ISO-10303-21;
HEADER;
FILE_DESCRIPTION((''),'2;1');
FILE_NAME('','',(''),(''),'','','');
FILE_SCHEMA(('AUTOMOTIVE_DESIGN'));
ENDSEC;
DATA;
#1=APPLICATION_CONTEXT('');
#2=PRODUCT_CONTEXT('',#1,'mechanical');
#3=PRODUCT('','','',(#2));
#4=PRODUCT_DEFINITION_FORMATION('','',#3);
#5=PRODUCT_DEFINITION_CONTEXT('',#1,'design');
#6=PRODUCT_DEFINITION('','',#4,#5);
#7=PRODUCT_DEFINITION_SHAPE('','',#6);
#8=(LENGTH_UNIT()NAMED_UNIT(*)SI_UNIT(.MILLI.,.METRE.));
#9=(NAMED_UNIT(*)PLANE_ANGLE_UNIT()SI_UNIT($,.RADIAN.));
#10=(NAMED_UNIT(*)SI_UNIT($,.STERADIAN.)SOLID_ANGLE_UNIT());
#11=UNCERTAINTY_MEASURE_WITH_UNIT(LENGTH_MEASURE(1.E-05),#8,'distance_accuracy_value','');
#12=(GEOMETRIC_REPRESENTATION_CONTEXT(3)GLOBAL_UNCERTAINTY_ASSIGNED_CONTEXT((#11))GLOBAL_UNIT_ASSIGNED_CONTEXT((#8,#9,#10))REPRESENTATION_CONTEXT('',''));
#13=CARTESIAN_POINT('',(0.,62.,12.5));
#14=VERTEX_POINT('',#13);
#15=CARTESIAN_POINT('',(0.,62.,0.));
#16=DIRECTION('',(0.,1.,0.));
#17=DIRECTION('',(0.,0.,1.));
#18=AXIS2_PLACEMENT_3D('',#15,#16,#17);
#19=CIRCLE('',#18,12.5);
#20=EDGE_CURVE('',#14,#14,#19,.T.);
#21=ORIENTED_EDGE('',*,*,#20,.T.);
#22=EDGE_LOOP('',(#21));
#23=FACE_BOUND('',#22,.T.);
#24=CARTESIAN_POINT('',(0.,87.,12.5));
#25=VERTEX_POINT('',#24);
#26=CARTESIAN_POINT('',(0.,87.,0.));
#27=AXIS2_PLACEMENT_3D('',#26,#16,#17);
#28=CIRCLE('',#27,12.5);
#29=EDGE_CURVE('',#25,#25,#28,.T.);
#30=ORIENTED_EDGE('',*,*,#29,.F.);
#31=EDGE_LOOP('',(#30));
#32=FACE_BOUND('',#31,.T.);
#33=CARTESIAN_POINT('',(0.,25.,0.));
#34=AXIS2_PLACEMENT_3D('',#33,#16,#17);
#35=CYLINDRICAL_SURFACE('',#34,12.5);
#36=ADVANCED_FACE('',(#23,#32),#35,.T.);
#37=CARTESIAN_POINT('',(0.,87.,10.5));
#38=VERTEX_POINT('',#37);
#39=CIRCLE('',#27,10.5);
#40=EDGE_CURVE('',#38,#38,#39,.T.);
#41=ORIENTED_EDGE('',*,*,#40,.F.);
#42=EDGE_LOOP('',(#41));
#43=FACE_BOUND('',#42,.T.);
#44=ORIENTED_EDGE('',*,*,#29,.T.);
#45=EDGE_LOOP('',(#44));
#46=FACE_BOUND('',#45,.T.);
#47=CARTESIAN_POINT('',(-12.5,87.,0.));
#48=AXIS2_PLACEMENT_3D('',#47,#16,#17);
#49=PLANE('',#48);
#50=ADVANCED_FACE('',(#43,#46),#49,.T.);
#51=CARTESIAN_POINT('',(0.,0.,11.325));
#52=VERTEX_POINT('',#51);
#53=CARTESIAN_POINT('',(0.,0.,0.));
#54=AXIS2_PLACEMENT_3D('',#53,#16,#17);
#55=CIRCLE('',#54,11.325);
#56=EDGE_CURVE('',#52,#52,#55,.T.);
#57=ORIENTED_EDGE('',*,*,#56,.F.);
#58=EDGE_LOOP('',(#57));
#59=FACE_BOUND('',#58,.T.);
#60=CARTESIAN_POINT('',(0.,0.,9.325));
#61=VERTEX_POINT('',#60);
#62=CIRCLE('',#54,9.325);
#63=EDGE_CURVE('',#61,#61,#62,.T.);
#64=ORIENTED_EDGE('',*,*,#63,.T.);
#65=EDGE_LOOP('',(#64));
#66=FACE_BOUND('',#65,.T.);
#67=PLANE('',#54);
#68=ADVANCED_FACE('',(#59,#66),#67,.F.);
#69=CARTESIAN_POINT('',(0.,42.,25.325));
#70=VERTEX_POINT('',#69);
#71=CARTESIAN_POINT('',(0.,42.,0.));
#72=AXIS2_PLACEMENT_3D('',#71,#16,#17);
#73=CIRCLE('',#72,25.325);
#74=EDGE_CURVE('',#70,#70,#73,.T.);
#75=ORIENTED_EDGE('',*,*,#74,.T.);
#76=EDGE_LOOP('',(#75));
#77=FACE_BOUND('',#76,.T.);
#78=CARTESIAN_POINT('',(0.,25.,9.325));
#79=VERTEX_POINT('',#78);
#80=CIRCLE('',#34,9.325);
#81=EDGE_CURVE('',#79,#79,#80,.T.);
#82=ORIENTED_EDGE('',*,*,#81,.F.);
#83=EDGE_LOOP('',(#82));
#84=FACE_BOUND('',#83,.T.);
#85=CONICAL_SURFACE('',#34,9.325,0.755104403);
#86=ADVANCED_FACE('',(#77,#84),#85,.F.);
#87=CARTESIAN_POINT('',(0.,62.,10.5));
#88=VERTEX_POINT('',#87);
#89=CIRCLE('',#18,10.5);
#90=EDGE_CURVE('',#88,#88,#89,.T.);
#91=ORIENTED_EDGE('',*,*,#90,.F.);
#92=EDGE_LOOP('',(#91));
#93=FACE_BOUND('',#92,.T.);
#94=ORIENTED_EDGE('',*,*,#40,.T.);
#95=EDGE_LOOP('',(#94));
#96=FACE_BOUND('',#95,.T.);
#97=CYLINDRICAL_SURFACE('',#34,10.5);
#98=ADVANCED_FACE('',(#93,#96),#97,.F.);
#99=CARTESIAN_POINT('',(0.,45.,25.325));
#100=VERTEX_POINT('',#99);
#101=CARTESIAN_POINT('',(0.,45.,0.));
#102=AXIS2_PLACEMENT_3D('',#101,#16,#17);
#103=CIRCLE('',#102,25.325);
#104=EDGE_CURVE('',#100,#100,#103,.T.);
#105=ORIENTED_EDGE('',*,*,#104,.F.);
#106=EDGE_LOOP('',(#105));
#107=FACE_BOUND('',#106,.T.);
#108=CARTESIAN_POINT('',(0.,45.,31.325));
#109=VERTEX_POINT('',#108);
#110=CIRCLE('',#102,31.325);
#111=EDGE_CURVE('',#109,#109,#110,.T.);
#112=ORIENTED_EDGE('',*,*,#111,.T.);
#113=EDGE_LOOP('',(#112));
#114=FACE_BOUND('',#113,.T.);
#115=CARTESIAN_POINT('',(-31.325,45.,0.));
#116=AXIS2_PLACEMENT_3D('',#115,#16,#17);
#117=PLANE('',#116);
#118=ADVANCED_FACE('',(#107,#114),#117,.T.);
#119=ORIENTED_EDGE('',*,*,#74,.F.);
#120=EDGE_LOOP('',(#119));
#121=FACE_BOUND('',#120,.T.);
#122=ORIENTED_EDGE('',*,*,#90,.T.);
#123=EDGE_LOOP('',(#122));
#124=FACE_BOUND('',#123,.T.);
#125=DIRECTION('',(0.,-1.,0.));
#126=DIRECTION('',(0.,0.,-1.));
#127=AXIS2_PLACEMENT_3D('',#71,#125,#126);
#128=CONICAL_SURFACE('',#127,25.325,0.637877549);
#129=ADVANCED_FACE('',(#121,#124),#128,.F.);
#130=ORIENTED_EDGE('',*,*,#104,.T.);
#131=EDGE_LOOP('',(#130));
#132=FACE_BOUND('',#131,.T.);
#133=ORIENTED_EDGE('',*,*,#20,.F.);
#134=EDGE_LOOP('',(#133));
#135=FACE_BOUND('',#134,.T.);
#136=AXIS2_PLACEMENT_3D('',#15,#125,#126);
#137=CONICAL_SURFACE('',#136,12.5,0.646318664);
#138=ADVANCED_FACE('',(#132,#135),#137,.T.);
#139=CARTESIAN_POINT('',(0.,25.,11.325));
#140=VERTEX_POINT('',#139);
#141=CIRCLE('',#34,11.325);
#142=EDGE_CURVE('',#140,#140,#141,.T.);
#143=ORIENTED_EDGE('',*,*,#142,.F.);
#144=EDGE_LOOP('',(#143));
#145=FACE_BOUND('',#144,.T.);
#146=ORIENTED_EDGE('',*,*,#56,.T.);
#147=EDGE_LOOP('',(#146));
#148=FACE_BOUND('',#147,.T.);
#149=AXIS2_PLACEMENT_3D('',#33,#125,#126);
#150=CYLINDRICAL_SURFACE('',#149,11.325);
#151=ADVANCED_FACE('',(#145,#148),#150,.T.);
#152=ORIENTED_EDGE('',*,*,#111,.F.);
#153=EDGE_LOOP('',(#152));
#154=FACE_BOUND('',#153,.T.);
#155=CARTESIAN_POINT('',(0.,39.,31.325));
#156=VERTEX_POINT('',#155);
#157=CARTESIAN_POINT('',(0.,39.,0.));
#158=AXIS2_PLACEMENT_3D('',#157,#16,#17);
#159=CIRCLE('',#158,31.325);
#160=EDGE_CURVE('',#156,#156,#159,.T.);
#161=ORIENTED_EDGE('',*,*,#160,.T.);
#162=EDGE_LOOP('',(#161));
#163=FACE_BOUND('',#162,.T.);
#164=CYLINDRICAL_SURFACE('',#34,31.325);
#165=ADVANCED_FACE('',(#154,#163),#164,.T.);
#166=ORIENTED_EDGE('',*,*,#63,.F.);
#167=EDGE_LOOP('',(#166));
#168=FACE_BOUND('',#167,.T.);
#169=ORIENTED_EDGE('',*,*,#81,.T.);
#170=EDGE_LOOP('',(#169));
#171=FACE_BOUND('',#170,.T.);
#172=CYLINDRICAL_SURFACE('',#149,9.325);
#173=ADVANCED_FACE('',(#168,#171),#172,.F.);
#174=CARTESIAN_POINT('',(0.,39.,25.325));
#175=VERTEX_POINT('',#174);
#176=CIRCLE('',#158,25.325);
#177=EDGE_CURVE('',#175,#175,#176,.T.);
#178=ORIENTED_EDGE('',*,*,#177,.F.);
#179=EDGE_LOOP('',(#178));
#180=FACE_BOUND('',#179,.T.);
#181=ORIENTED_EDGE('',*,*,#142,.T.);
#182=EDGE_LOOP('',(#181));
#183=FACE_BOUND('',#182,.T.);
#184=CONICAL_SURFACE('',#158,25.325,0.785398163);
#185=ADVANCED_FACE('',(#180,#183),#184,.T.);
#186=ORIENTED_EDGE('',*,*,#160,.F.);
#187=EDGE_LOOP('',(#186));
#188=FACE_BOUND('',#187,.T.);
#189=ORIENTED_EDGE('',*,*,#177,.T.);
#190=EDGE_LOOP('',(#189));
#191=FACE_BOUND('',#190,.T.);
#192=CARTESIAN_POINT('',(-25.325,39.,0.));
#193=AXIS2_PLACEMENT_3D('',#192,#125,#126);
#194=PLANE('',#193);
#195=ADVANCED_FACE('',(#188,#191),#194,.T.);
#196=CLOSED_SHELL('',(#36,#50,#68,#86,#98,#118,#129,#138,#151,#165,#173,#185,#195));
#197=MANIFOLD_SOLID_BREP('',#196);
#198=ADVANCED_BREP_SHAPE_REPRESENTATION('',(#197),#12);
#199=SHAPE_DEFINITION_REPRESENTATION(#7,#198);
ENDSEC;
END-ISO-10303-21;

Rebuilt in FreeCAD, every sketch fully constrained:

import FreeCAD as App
import Part
import Sketcher
from FreeCAD import Vector
Q = App.Units.Quantity

doc = App.newDocument("Part")
body = doc.addObject("PartDesign::Body", "Body")

# Sketch on XZ plane
sketch1 = body.newObject("Sketcher::SketchObject", "Sketch")
sketch1.AttachmentSupport = (doc.getObject("XZ_Plane"), [""])
sketch1.MapMode = "FlatFace"
sketch1.addGeometry([
    Part.Circle(Vector(0, 0, 0), Vector(0, 0, 1), 11),
    Part.Circle(Vector(0, 0, 0), Vector(0, 0, 1), 9),
], False)
sketch1.addConstraint([
    Sketcher.Constraint("Coincident", 0, 3, -1, 1),
    Sketcher.Constraint("Coincident", 1, 3, -1, 1),
    Sketcher.Constraint("Diameter", 0, Q("22.65 mm")),
    Sketcher.Constraint("Diameter", 1, Q("18.65 mm")),
])
pad1 = body.newObject("PartDesign::Pad", "Pad")
pad1.Profile = sketch1
pad1.Length = 25
pad1.Reversed = True

# Sketch on XY plane
sketch2 = body.newObject("Sketcher::SketchObject", "Sketch001")
sketch2.AttachmentSupport = (doc.getObject("XY_Plane"), [""])
sketch2.MapMode = "FlatFace"
sketch2.addGeometry([
    Part.LineSegment(Vector(-25.3, 39, 0), Vector(-11.3, 25, 0)),  # 0
    Part.LineSegment(Vector(-11.3, 25, 0), Vector(-9.3, 25, 0)),  # 1
    Part.LineSegment(Vector(-9.3, 25, 0), Vector(-25.3, 42, 0)),  # 2
    Part.LineSegment(Vector(-25.3, 42, 0), Vector(-31.3, 42, 0)),  # 3
    Part.LineSegment(Vector(-31.3, 42, 0), Vector(-31.3, 39, 0)),  # 4
    Part.LineSegment(Vector(-31.3, 39, 0), Vector(-25.3, 39, 0)),  # 5
], False)
sketch2.addConstraint([
    Sketcher.Constraint("Coincident", 0, 2, 1, 1),
    Sketcher.Constraint("Coincident", 1, 2, 2, 1),
    Sketcher.Constraint("Coincident", 2, 2, 3, 1),
    Sketcher.Constraint("Coincident", 3, 2, 4, 1),
    Sketcher.Constraint("Coincident", 4, 2, 5, 1),
    Sketcher.Constraint("Coincident", 5, 2, 0, 1),
    Sketcher.Constraint("Horizontal", 1),
    Sketcher.Constraint("Horizontal", 3),
    Sketcher.Constraint("Vertical", 4),
    Sketcher.Constraint("Horizontal", 5),
    Sketcher.Constraint("Vertical", 2, 2, 5, 2),
    Sketcher.Constraint("DistanceX", 1, 1, 1, 2, Q("2 mm")),
    Sketcher.Constraint("DistanceX", 3, 2, 3, 1, Q("6 mm")),
    Sketcher.Constraint("DistanceY", 4, 2, 4, 1, Q("3 mm")),
    Sketcher.Constraint("Angle", 0, Q("-45 deg")),
    Sketcher.Constraint("DistanceY", -1, 1, 0, 2, Q("25 mm")),
    Sketcher.Constraint("DistanceY", -1, 1, 2, 2, Q("42 mm")),
    Sketcher.Constraint("DistanceX", 0, 2, -1, 1, Q("11.325 mm")),
])
revolution = body.newObject("PartDesign::Revolution", "Revolution")
revolution.Profile = sketch2
revolution.ReferenceAxis = (sketch2, ["V_Axis"])
revolution.Angle = 360

# Sketch on XY plane
sketch3 = body.newObject("Sketcher::SketchObject", "Sketch002")
sketch3.AttachmentSupport = (doc.getObject("XY_Plane"), [""])
sketch3.MapMode = "FlatFace"
sketch3.addGeometry([
    Part.LineSegment(Vector(-31.3, 45, 0), Vector(-31.3, 42, 0)),  # 0
    Part.LineSegment(Vector(-31.3, 42, 0), Vector(-25.3, 42, 0)),  # 1
    Part.LineSegment(Vector(-25.3, 42, 0), Vector(-10.5, 62, 0)),  # 2
    Part.LineSegment(Vector(-10.5, 62, 0), Vector(-10.5, 87, 0)),  # 3
    Part.LineSegment(Vector(-10.5, 87, 0), Vector(-12.5, 87, 0)),  # 4
    Part.LineSegment(Vector(-12.5, 87, 0), Vector(-12.5, 62, 0)),  # 5
    Part.LineSegment(Vector(-12.5, 62, 0), Vector(-25.3, 45, 0)),  # 6
    Part.LineSegment(Vector(-25.3, 45, 0), Vector(-31.3, 45, 0)),  # 7
], False)
sketch3.addConstraint([
    Sketcher.Constraint("Coincident", 0, 2, 1, 1),
    Sketcher.Constraint("Coincident", 1, 2, 2, 1),
    Sketcher.Constraint("Coincident", 2, 2, 3, 1),
    Sketcher.Constraint("Coincident", 3, 2, 4, 1),
    Sketcher.Constraint("Coincident", 4, 2, 5, 1),
    Sketcher.Constraint("Coincident", 5, 2, 6, 1),
    Sketcher.Constraint("Coincident", 6, 2, 7, 1),
    Sketcher.Constraint("Coincident", 7, 2, 0, 1),
    Sketcher.Constraint("Vertical", 0),
    Sketcher.Constraint("Horizontal", 1),
    Sketcher.Constraint("Vertical", 3),
    Sketcher.Constraint("Horizontal", 4),
    Sketcher.Constraint("Vertical", 5),
    Sketcher.Constraint("Horizontal", 7),
    Sketcher.Constraint("Horizontal", 2, 2, 5, 2),
    Sketcher.Constraint("Vertical", 1, 2, 6, 2),
    Sketcher.Constraint("DistanceX", 1, 1, 1, 2, Q("6 mm")),
    Sketcher.Constraint("DistanceX", 4, 2, 4, 1, Q("2 mm")),
    Sketcher.Constraint("DistanceY", 0, 2, 0, 1, Q("3 mm")),
    Sketcher.Constraint("DistanceY", 3, 1, 3, 2, Q("25 mm")),
    Sketcher.Constraint("DistanceY", -1, 1, 0, 2, Q("42 mm")),
    Sketcher.Constraint("DistanceY", -1, 1, 2, 2, Q("62 mm")),
    Sketcher.Constraint("DistanceX", 2, 2, -1, 1, Q("10.5 mm")),
    Sketcher.Constraint("DistanceX", 0, 2, -1, 1, Q("31.325 mm")),
])
revolution2 = body.newObject("PartDesign::Revolution", "Revolution001")
revolution2.Profile = sketch3
revolution2.ReferenceAxis = (sketch3, ["V_Axis"])
revolution2.Angle = 360

doc.recompute()
